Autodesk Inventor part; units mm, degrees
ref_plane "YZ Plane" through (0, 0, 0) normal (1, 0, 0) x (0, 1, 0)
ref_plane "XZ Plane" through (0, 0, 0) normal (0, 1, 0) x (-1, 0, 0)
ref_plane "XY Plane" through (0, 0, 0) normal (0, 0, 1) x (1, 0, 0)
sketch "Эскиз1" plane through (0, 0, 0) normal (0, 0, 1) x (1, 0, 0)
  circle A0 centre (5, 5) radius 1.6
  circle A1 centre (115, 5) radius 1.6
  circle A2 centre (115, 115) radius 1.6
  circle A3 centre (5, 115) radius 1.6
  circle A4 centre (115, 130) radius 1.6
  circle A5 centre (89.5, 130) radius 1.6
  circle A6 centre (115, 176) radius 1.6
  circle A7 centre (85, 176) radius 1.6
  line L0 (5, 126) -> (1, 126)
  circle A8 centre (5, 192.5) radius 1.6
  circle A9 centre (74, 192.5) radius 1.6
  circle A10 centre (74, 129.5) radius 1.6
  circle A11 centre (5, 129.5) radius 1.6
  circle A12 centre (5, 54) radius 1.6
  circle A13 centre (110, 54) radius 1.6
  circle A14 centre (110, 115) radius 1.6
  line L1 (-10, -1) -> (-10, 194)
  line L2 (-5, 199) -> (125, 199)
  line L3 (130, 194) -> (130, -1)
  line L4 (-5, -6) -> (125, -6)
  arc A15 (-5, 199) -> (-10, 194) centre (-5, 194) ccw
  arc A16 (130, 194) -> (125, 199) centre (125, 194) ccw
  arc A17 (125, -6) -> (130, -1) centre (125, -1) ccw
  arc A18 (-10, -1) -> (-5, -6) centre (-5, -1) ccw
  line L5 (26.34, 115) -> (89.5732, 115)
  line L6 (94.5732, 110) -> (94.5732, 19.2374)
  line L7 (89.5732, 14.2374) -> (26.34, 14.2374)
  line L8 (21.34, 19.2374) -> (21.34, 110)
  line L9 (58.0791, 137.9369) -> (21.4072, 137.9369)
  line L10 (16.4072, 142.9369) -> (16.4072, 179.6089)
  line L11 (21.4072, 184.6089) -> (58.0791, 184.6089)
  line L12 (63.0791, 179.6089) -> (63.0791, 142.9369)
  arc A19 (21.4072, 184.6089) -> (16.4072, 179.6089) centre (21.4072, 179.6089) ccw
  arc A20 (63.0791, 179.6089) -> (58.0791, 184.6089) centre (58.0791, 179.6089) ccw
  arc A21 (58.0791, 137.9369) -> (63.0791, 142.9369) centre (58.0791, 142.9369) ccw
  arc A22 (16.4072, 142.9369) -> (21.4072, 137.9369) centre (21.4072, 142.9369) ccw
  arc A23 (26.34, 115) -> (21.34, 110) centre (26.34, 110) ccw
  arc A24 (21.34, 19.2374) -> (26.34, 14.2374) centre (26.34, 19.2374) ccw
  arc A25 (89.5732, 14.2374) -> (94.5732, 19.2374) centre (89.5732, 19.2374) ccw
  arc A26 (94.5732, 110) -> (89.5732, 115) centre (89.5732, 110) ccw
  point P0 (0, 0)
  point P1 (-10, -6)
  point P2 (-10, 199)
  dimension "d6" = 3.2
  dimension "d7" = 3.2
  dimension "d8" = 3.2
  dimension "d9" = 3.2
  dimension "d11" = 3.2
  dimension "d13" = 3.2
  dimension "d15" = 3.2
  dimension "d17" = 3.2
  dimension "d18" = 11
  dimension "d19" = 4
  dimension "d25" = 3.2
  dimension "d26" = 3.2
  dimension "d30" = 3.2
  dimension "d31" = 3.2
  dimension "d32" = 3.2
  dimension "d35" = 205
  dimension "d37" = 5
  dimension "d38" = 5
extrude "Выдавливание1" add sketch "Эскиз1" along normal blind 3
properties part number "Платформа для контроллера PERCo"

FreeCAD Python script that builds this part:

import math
import FreeCAD as App
import Part
import Sketcher
from FreeCAD import Vector
Q = App.Units.Quantity

doc = App.newDocument("Part")
params = doc.addObject("Spreadsheet::Sheet", "Params")
for row, (alias, value) in enumerate([
    ("sketch1_radius", "5 mm"),
    ("sketch1_diameter", "3.2 mm"),
    ("sketch1_width", "130 mm"),
    ("sketch1_height", "195 mm"),
    ("pad1_length", "3 mm"),
], start=1):
    params.set(f"A{row}", alias)
    params.set(f"B{row}", "=" + value)
    params.setAlias(f"B{row}", alias)

body = doc.addObject("PartDesign::Body", "Body")

# Sketch on XY plane
sketch1 = body.newObject("Sketcher::SketchObject", "Sketch")
sketch1.AttachmentSupport = (doc.getObject("XY_Plane"), [""])
sketch1.MapMode = "FlatFace"
sketch1.addGeometry(Part.LineSegment(Vector(-10, 194, 0), Vector(-10, -1, 0)), False)
sketch1.addGeometry(Part.ArcOfCircle(Part.Circle(Vector(-5, -1, 0), Vector(0, 0, 1), 5), math.radians(180), math.radians(270)), False)
sketch1.addGeometry(Part.LineSegment(Vector(-5, -6, 0), Vector(125, -6, 0)), False)
sketch1.addGeometry(Part.ArcOfCircle(Part.Circle(Vector(125, -1, 0), Vector(0, 0, 1), 5), math.radians(-90), math.radians(0)), False)
sketch1.addGeometry(Part.LineSegment(Vector(130, -1, 0), Vector(130, 194, 0)), False)
sketch1.addGeometry(Part.ArcOfCircle(Part.Circle(Vector(125, 194, 0), Vector(0, 0, 1), 5), math.radians(0), math.radians(90)), False)
sketch1.addGeometry(Part.LineSegment(Vector(125, 199, 0), Vector(-5, 199, 0)), False)
sketch1.addGeometry(Part.ArcOfCircle(Part.Circle(Vector(-5, 194, 0), Vector(0, 0, 1), 5), math.radians(90), math.radians(180)), False)
sketch1.addGeometry(Part.Circle(Vector(5, 5, 0), Vector(0, 0, 1), 1.6), False)
sketch1.addGeometry(Part.Circle(Vector(5, 54, 0), Vector(0, 0, 1), 1.6), False)
sketch1.addGeometry(Part.ArcOfCircle(Part.Circle(Vector(26.3, 110, 0), Vector(0, 0, 1), 5), math.radians(90), math.radians(180)), False)
sketch1.addGeometry(Part.LineSegment(Vector(26.3, 115, 0), Vector(89.6, 115, 0)), False)
sketch1.addGeometry(Part.ArcOfCircle(Part.Circle(Vector(89.6, 110, 0), Vector(0, 0, 1), 5), math.radians(0), math.radians(90)), False)
sketch1.addGeometry(Part.LineSegment(Vector(94.6, 110, 0), Vector(94.6, 19.2, 0)), False)
sketch1.addGeometry(Part.ArcOfCircle(Part.Circle(Vector(89.6, 19.2, 0), Vector(0, 0, 1), 5), math.radians(-90), math.radians(0)), False)
sketch1.addGeometry(Part.LineSegment(Vector(89.6, 14.2, 0), Vector(26.3, 14.2, 0)), False)
sketch1.addGeometry(Part.ArcOfCircle(Part.Circle(Vector(26.3, 19.2, 0), Vector(0, 0, 1), 5), math.radians(180), math.radians(270)), False)
sketch1.addGeometry(Part.LineSegment(Vector(21.3, 19.2, 0), Vector(21.3, 110, 0)), False)
sketch1.addGeometry(Part.Circle(Vector(115, 5, 0), Vector(0, 0, 1), 1.6), False)
sketch1.addGeometry(Part.Circle(Vector(110, 54, 0), Vector(0, 0, 1), 1.6), False)
sketch1.addGeometry(Part.Circle(Vector(5, 115, 0), Vector(0, 0, 1), 1.6), False)
sketch1.addGeometry(Part.Circle(Vector(5, 129.5, 0), Vector(0, 0, 1), 1.6), False)
sketch1.addGeometry(Part.Circle(Vector(5, 192.5, 0), Vector(0, 0, 1), 1.6), False)
sketch1.addGeometry(Part.ArcOfCircle(Part.Circle(Vector(58.1, 142.9, 0), Vector(0, 0, 1), 5), math.radians(-90), math.radians(0)), False)
sketch1.addGeometry(Part.LineSegment(Vector(58.1, 137.9, 0), Vector(21.4, 137.9, 0)), False)
sketch1.addGeometry(Part.ArcOfCircle(Part.Circle(Vector(21.4, 142.9, 0), Vector(0, 0, 1), 5), math.radians(180), math.radians(270)), False)
sketch1.addGeometry(Part.LineSegment(Vector(16.4, 142.9, 0), Vector(16.4, 179.6, 0)), False)
sketch1.addGeometry(Part.ArcOfCircle(Part.Circle(Vector(21.4, 179.6, 0), Vector(0, 0, 1), 5), math.radians(90), math.radians(180)), False)
sketch1.addGeometry(Part.LineSegment(Vector(21.4, 184.6, 0), Vector(58.1, 184.6, 0)), False)
sketch1.addGeometry(Part.ArcOfCircle(Part.Circle(Vector(58.1, 179.6, 0), Vector(0, 0, 1), 5), math.radians(0), math.radians(90)), False)
sketch1.addGeometry(Part.LineSegment(Vector(63.1, 179.6, 0), Vector(63.1, 142.9, 0)), False)
sketch1.addGeometry(Part.Circle(Vector(74, 129.5, 0), Vector(0, 0, 1), 1.6), False)
sketch1.addGeometry(Part.Circle(Vector(89.5, 130, 0), Vector(0, 0, 1), 1.6), False)
sketch1.addGeometry(Part.Circle(Vector(110, 115, 0), Vector(0, 0, 1), 1.6), False)
sketch1.addGeometry(Part.Circle(Vector(115, 115, 0), Vector(0, 0, 1), 1.6), False)
sketch1.addGeometry(Part.Circle(Vector(115, 130, 0), Vector(0, 0, 1), 1.6), False)
sketch1.addGeometry(Part.Circle(Vector(74, 192.5, 0), Vector(0, 0, 1), 1.6), False)
sketch1.addGeometry(Part.Circle(Vector(85, 176, 0), Vector(0, 0, 1), 1.6), False)
sketch1.addGeometry(Part.Circle(Vector(115, 176, 0), Vector(0, 0, 1), 1.6), False)
sketch1.addConstraint(Sketcher.Constraint("Tangent", 0, 2, 1, 1))
sketch1.addConstraint(Sketcher.Constraint("Tangent", 1, 2, 2, 1))
sketch1.addConstraint(Sketcher.Constraint("Tangent", 2, 2, 3, 1))
sketch1.addConstraint(Sketcher.Constraint("Tangent", 3, 2, 4, 1))
sketch1.addConstraint(Sketcher.Constraint("Tangent", 4, 2, 5, 1))
sketch1.addConstraint(Sketcher.Constraint("Tangent", 5, 2, 6, 1))
sketch1.addConstraint(Sketcher.Constraint("Tangent", 6, 2, 7, 1))
sketch1.addConstraint(Sketcher.Constraint("Tangent", 7, 2, 0, 1))
sketch1.addConstraint(Sketcher.Constraint("Tangent", 10, 1, 11, 1))
sketch1.addConstraint(Sketcher.Constraint("Tangent", 11, 2, 12, 2))
sketch1.addConstraint(Sketcher.Constraint("Tangent", 12, 1, 13, 1))
sketch1.addConstraint(Sketcher.Constraint("Tangent", 13, 2, 14, 2))
sketch1.addConstraint(Sketcher.Constraint("Tangent", 14, 1, 15, 1))
sketch1.addConstraint(Sketcher.Constraint("Tangent", 15, 2, 16, 2))
sketch1.addConstraint(Sketcher.Constraint("Tangent", 16, 1, 17, 1))
sketch1.addConstraint(Sketcher.Constraint("Tangent", 17, 2, 10, 2))
sketch1.addConstraint(Sketcher.Constraint("Tangent", 23, 1, 24, 1))
sketch1.addConstraint(Sketcher.Constraint("Tangent", 24, 2, 25, 2))
sketch1.addConstraint(Sketcher.Constraint("Tangent", 25, 1, 26, 1))
sketch1.addConstraint(Sketcher.Constraint("Tangent", 26, 2, 27, 2))
sketch1.addConstraint(Sketcher.Constraint("Tangent", 27, 1, 28, 1))
sketch1.addConstraint(Sketcher.Constraint("Tangent", 28, 2, 29, 2))
sketch1.addConstraint(Sketcher.Constraint("Tangent", 29, 1, 30, 1))
sketch1.addConstraint(Sketcher.Constraint("Tangent", 30, 2, 23, 2))
sketch1.addConstraint(Sketcher.Constraint("Vertical", 0))
sketch1.addConstraint(Sketcher.Constraint("Horizontal", 2))
sketch1.addConstraint(Sketcher.Constraint("Vertical", 4))
sketch1.addConstraint(Sketcher.Constraint("Horizontal", 6))
sketch1.addConstraint(Sketcher.Constraint("Horizontal", 11))
sketch1.addConstraint(Sketcher.Constraint("Vertical", 13))
sketch1.addConstraint(Sketcher.Constraint("Horizontal", 15))
sketch1.addConstraint(Sketcher.Constraint("Vertical", 17))
sketch1.addConstraint(Sketcher.Constraint("Horizontal", 24))
sketch1.addConstraint(Sketcher.Constraint("Vertical", 26))
sketch1.addConstraint(Sketcher.Constraint("Horizontal", 28))
sketch1.addConstraint(Sketcher.Constraint("Vertical", 30))
sketch1.addConstraint(Sketcher.Constraint("Equal", 1, 3))
sketch1.addConstraint(Sketcher.Constraint("Equal", 3, 5))
sketch1.addConstraint(Sketcher.Constraint("Equal", 5, 7))
sketch1.addConstraint(Sketcher.Constraint("Equal", 8, 9))
sketch1.addConstraint(Sketcher.Constraint("Equal", 7, 10))
sketch1.addConstraint(Sketcher.Constraint("Equal", 10, 12))
sketch1.addConstraint(Sketcher.Constraint("Equal", 12, 14))
sketch1.addConstraint(Sketcher.Constraint("Equal", 14, 16))
sketch1.addConstraint(Sketcher.Constraint("Equal", 9, 18))
sketch1.addConstraint(Sketcher.Constraint("Equal", 18, 19))
sketch1.addConstraint(Sketcher.Constraint("Equal", 19, 20))
sketch1.addConstraint(Sketcher.Constraint("Equal", 20, 21))
sketch1.addConstraint(Sketcher.Constraint("Equal", 21, 22))
sketch1.addConstraint(Sketcher.Constraint("Equal", 16, 23))
sketch1.addConstraint(Sketcher.Constraint("Equal", 23, 25))
sketch1.addConstraint(Sketcher.Constraint("Equal", 25, 27))
sketch1.addConstraint(Sketcher.Constraint("Equal", 27, 29))
sketch1.addConstraint(Sketcher.Constraint("Equal", 22, 31))
sketch1.addConstraint(Sketcher.Constraint("Equal", 31, 32))
sketch1.addConstraint(Sketcher.Constraint("Equal", 32, 33))
sketch1.addConstraint(Sketcher.Constraint("Equal", 33, 34))
sketch1.addConstraint(Sketcher.Constraint("Equal", 34, 35))
sketch1.addConstraint(Sketcher.Constraint("Equal", 35, 36))
sketch1.addConstraint(Sketcher.Constraint("Equal", 36, 37))
sketch1.addConstraint(Sketcher.Constraint("Equal", 37, 38))
sketch1.addConstraint(Sketcher.Constraint("Horizontal", 8, 3, 18, 3))
sketch1.addConstraint(Sketcher.Constraint("Horizontal", 9, 3, 19, 3))
sketch1.addConstraint(Sketcher.Constraint("Horizontal", 21, 3, 31, 3))
sketch1.addConstraint(Sketcher.Constraint("Horizontal", 20, 3, 33, 3))
sketch1.addConstraint(Sketcher.Constraint("Horizontal", 33, 3, 34, 3))
sketch1.addConstraint(Sketcher.Constraint("Horizontal", 32, 3, 35, 3))
sketch1.addConstraint(Sketcher.Constraint("Horizontal", 22, 3, 36, 3))
sketch1.addConstraint(Sketcher.Constraint("Horizontal", 37, 3, 38, 3))
sketch1.addConstraint(Sketcher.Constraint("Horizontal", 34, 3, 10, 1))
sketch1.addConstraint(Sketcher.Constraint("Vertical", 8, 3, 9, 3))
sketch1.addConstraint(Sketcher.Constraint("Vertical", 9, 3, 20, 3))
sketch1.addConstraint(Sketcher.Constraint("Vertical", 20, 3, 21, 3))
sketch1.addConstraint(Sketcher.Constraint("Vertical", 21, 3, 22, 3))
sketch1.addConstraint(Sketcher.Constraint("Vertical", 19, 3, 33, 3))
sketch1.addConstraint(Sketcher.Constraint("Vertical", 18, 3, 34, 3))
sketch1.addConstraint(Sketcher.Constraint("Vertical", 34, 3, 35, 3))
sketch1.addConstraint(Sketcher.Constraint("Vertical", 31, 3, 36, 3))
sketch1.addConstraint(Sketcher.Constraint("Vertical", 35, 3, 38, 3))
sketch1.addConstraint(Sketcher.Constraint("Equal", 28, 26))
sketch1.addConstraint(Sketcher.Constraint("Radius", 1, Q("5 mm")))
sketch1.addConstraint(Sketcher.Constraint("Diameter", 8, Q("3.2 mm")))
sketch1.addConstraint(Sketcher.Constraint("DistanceX", 1, 3, -1, 1, Q("5 mm")))
sketch1.addConstraint(Sketcher.Constraint("DistanceX", -1, 1, 8, 3, Q("5 mm")))
sketch1.addConstraint(Sketcher.Constraint("DistanceY", -1, 1, 8, 3, Q("5 mm")))
sketch1.addConstraint(Sketcher.Constraint("DistanceX", 19, 3, 18, 3, Q("5 mm")))
sketch1.addConstraint(Sketcher.Constraint("DistanceX", 36, 3, 37, 3, Q("11 mm")))
sketch1.addConstraint(Sketcher.Constraint("DistanceY", 1, 2, 8, 3, Q("11 mm")))
sketch1.addConstraint(Sketcher.Constraint("DistanceX", 2, 1, 2, 2, Q("130 mm")))
sketch1.addConstraint(Sketcher.Constraint("DistanceY", 0, 2, 0, 1, Q("195 mm")))
sketch1.addConstraint(Sketcher.Constraint("DistanceY", -1, 1, 9, 3, Q("54 mm")))
sketch1.addConstraint(Sketcher.Constraint("DistanceY", -1, 1, 10, 3, Q("110 mm")))
sketch1.addConstraint(Sketcher.Constraint("DistanceX", -1, 1, 18, 3, Q("115 mm")))
sketch1.addConstraint(Sketcher.Constraint("DistanceX", -1, 1, 31, 3, Q("74 mm")))
sketch1.addConstraint(Sketcher.Constraint("DistanceY", -1, 1, 32, 3, Q("130 mm")))
sketch1.addConstraint(Sketcher.Constraint("DistanceY", -1, 1, 37, 3, Q("176 mm")))
sketch1.addConstraint(Sketcher.Constraint("DistanceY", 21, 3, 22, 3, Q("63 mm")))
sketch1.addConstraint(Sketcher.Constraint("DistanceY", -1, 1, 21, 3, Q("129.5 mm")))
sketch1.addConstraint(Sketcher.Constraint("DistanceX", -1, 1, 32, 3, Q("89.5 mm")))
sketch1.addConstraint(Sketcher.Constraint("DistanceX", 24, 2, 24, 1, Q("36.672 mm")))
sketch1.addConstraint(Sketcher.Constraint("DistanceX", -1, 1, 10, 3, Q("26.34 mm")))
sketch1.addConstraint(Sketcher.Constraint("DistanceX", 11, 1, 11, 2, Q("63.2332 mm")))
sketch1.addConstraint(Sketcher.Constraint("DistanceY", 13, 2, 13, 1, Q("90.7626 mm")))
sketch1.addConstraint(Sketcher.Constraint("DistanceX", -1, 1, 23, 3, Q("58.079 mm")))
sketch1.addConstraint(Sketcher.Constraint("DistanceY", -1, 1, 23, 3, Q("142.937 mm")))
sketch1.setExpression("Constraints[80]", "Params.sketch1_radius")
sketch1.setExpression("Constraints[81]", "Params.sketch1_diameter")
sketch1.setExpression("Constraints[88]", "Params.sketch1_width")
sketch1.setExpression("Constraints[89]", "Params.sketch1_height")
pad1 = body.newObject("PartDesign::Pad", "Pad")
pad1.Profile = sketch1
pad1.setExpression("Length", "Params.pad1_length")

doc.recompute()
